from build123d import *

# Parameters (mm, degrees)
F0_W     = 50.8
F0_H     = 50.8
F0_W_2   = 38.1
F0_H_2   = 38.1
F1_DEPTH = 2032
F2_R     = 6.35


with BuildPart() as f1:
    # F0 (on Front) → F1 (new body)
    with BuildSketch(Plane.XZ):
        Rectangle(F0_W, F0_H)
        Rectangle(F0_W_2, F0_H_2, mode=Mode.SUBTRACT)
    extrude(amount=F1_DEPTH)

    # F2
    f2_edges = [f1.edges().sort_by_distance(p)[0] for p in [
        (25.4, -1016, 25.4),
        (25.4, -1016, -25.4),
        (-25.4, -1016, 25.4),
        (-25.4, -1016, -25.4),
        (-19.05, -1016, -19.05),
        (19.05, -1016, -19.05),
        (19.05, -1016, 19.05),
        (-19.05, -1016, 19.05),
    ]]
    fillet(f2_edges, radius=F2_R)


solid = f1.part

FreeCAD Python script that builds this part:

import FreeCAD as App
import Part
import Sketcher

V = App.Vector
Q = App.Units.Quantity


def edges_at(feature, points):
    """Names of the edges that pass closest to the given points."""
    edges = feature.Shape.Edges
    near = lambda p: min(range(len(edges)), key=lambda i: edges[i].distToShape(Part.Vertex(*p))[0])
    return sorted({f"Edge{near(p) + 1}" for p in points})


def add_polygon(sketch, points):
    """Adds a closed chain of lines whose ends are joined by coincident constraints."""
    first, n = sketch.GeometryCount, len(points)
    for a, b in zip(points, points[1:] + points[:1]):
        sketch.addGeometry(Part.LineSegment(App.Vector(*a, 0), App.Vector(*b, 0)), False)
    for i in range(n):
        sketch.addConstraint(Sketcher.Constraint("Coincident", first + i, 2, first + (i + 1) % n, 1))

doc = App.newDocument("Part")
body = doc.addObject("PartDesign::Body", "Body")

sketch1 = doc.addObject("Sketcher::SketchObject", "Sketch")
body.addObject(sketch1)
sketch1.AttachmentSupport = (doc.XZ_Plane, [""])
sketch1.MapMode = "FlatFace"
add_polygon(sketch1, [(-25.4, 25.4), (-25.4, -25.4), (25.4, -25.4), (25.4, 25.4)])
add_polygon(sketch1, [(19.05, -19.05), (-19.05, -19.05), (-19.05, 19.05), (19.05, 19.05)])
sketch1.addConstraint([
    Sketcher.Constraint("Vertical", 0),
    Sketcher.Constraint("Horizontal", 1),
    Sketcher.Constraint("Vertical", 2),
    Sketcher.Constraint("Horizontal", 3),
    Sketcher.Constraint("Horizontal", 4),
    Sketcher.Constraint("Vertical", 5),
    Sketcher.Constraint("Horizontal", 6),
    Sketcher.Constraint("Vertical", 7),
    Sketcher.Constraint("Symmetric", 0, 2, 2, 2, -1, 1),
    Sketcher.Constraint("Symmetric", 4, 2, 6, 2, -1, 1),
    Sketcher.Constraint("Equal", 3, 0),
    Sketcher.Constraint("Equal", 6, 5),
    Sketcher.Constraint("DistanceX", 1, 1, 1, 2, Q("2 in")),
    Sketcher.Constraint("DistanceX", 4, 2, 4, 1, Q("1.5 in")),
])
pad1 = doc.addObject("PartDesign::Pad", "Pad")
body.addObject(pad1)
pad1.Profile = sketch1
pad1.Length = Q("80 in")
doc.recompute()

fillet = doc.addObject("PartDesign::Fillet", "Fillet")
body.addObject(fillet)
fillet.Base = (pad1, edges_at(pad1, [
    (25.4, -1016, 25.4),
    (25.4, -1016, -25.4),
    (-25.4, -1016, 25.4),
    (-25.4, -1016, -25.4),
    (-19.05, -1016, -19.05),
    (19.05, -1016, -19.05),
    (19.05, -1016, 19.05),
    (-19.05, -1016, 19.05),
]))
fillet.Radius = Q("0.25 in")

doc.recompute()
